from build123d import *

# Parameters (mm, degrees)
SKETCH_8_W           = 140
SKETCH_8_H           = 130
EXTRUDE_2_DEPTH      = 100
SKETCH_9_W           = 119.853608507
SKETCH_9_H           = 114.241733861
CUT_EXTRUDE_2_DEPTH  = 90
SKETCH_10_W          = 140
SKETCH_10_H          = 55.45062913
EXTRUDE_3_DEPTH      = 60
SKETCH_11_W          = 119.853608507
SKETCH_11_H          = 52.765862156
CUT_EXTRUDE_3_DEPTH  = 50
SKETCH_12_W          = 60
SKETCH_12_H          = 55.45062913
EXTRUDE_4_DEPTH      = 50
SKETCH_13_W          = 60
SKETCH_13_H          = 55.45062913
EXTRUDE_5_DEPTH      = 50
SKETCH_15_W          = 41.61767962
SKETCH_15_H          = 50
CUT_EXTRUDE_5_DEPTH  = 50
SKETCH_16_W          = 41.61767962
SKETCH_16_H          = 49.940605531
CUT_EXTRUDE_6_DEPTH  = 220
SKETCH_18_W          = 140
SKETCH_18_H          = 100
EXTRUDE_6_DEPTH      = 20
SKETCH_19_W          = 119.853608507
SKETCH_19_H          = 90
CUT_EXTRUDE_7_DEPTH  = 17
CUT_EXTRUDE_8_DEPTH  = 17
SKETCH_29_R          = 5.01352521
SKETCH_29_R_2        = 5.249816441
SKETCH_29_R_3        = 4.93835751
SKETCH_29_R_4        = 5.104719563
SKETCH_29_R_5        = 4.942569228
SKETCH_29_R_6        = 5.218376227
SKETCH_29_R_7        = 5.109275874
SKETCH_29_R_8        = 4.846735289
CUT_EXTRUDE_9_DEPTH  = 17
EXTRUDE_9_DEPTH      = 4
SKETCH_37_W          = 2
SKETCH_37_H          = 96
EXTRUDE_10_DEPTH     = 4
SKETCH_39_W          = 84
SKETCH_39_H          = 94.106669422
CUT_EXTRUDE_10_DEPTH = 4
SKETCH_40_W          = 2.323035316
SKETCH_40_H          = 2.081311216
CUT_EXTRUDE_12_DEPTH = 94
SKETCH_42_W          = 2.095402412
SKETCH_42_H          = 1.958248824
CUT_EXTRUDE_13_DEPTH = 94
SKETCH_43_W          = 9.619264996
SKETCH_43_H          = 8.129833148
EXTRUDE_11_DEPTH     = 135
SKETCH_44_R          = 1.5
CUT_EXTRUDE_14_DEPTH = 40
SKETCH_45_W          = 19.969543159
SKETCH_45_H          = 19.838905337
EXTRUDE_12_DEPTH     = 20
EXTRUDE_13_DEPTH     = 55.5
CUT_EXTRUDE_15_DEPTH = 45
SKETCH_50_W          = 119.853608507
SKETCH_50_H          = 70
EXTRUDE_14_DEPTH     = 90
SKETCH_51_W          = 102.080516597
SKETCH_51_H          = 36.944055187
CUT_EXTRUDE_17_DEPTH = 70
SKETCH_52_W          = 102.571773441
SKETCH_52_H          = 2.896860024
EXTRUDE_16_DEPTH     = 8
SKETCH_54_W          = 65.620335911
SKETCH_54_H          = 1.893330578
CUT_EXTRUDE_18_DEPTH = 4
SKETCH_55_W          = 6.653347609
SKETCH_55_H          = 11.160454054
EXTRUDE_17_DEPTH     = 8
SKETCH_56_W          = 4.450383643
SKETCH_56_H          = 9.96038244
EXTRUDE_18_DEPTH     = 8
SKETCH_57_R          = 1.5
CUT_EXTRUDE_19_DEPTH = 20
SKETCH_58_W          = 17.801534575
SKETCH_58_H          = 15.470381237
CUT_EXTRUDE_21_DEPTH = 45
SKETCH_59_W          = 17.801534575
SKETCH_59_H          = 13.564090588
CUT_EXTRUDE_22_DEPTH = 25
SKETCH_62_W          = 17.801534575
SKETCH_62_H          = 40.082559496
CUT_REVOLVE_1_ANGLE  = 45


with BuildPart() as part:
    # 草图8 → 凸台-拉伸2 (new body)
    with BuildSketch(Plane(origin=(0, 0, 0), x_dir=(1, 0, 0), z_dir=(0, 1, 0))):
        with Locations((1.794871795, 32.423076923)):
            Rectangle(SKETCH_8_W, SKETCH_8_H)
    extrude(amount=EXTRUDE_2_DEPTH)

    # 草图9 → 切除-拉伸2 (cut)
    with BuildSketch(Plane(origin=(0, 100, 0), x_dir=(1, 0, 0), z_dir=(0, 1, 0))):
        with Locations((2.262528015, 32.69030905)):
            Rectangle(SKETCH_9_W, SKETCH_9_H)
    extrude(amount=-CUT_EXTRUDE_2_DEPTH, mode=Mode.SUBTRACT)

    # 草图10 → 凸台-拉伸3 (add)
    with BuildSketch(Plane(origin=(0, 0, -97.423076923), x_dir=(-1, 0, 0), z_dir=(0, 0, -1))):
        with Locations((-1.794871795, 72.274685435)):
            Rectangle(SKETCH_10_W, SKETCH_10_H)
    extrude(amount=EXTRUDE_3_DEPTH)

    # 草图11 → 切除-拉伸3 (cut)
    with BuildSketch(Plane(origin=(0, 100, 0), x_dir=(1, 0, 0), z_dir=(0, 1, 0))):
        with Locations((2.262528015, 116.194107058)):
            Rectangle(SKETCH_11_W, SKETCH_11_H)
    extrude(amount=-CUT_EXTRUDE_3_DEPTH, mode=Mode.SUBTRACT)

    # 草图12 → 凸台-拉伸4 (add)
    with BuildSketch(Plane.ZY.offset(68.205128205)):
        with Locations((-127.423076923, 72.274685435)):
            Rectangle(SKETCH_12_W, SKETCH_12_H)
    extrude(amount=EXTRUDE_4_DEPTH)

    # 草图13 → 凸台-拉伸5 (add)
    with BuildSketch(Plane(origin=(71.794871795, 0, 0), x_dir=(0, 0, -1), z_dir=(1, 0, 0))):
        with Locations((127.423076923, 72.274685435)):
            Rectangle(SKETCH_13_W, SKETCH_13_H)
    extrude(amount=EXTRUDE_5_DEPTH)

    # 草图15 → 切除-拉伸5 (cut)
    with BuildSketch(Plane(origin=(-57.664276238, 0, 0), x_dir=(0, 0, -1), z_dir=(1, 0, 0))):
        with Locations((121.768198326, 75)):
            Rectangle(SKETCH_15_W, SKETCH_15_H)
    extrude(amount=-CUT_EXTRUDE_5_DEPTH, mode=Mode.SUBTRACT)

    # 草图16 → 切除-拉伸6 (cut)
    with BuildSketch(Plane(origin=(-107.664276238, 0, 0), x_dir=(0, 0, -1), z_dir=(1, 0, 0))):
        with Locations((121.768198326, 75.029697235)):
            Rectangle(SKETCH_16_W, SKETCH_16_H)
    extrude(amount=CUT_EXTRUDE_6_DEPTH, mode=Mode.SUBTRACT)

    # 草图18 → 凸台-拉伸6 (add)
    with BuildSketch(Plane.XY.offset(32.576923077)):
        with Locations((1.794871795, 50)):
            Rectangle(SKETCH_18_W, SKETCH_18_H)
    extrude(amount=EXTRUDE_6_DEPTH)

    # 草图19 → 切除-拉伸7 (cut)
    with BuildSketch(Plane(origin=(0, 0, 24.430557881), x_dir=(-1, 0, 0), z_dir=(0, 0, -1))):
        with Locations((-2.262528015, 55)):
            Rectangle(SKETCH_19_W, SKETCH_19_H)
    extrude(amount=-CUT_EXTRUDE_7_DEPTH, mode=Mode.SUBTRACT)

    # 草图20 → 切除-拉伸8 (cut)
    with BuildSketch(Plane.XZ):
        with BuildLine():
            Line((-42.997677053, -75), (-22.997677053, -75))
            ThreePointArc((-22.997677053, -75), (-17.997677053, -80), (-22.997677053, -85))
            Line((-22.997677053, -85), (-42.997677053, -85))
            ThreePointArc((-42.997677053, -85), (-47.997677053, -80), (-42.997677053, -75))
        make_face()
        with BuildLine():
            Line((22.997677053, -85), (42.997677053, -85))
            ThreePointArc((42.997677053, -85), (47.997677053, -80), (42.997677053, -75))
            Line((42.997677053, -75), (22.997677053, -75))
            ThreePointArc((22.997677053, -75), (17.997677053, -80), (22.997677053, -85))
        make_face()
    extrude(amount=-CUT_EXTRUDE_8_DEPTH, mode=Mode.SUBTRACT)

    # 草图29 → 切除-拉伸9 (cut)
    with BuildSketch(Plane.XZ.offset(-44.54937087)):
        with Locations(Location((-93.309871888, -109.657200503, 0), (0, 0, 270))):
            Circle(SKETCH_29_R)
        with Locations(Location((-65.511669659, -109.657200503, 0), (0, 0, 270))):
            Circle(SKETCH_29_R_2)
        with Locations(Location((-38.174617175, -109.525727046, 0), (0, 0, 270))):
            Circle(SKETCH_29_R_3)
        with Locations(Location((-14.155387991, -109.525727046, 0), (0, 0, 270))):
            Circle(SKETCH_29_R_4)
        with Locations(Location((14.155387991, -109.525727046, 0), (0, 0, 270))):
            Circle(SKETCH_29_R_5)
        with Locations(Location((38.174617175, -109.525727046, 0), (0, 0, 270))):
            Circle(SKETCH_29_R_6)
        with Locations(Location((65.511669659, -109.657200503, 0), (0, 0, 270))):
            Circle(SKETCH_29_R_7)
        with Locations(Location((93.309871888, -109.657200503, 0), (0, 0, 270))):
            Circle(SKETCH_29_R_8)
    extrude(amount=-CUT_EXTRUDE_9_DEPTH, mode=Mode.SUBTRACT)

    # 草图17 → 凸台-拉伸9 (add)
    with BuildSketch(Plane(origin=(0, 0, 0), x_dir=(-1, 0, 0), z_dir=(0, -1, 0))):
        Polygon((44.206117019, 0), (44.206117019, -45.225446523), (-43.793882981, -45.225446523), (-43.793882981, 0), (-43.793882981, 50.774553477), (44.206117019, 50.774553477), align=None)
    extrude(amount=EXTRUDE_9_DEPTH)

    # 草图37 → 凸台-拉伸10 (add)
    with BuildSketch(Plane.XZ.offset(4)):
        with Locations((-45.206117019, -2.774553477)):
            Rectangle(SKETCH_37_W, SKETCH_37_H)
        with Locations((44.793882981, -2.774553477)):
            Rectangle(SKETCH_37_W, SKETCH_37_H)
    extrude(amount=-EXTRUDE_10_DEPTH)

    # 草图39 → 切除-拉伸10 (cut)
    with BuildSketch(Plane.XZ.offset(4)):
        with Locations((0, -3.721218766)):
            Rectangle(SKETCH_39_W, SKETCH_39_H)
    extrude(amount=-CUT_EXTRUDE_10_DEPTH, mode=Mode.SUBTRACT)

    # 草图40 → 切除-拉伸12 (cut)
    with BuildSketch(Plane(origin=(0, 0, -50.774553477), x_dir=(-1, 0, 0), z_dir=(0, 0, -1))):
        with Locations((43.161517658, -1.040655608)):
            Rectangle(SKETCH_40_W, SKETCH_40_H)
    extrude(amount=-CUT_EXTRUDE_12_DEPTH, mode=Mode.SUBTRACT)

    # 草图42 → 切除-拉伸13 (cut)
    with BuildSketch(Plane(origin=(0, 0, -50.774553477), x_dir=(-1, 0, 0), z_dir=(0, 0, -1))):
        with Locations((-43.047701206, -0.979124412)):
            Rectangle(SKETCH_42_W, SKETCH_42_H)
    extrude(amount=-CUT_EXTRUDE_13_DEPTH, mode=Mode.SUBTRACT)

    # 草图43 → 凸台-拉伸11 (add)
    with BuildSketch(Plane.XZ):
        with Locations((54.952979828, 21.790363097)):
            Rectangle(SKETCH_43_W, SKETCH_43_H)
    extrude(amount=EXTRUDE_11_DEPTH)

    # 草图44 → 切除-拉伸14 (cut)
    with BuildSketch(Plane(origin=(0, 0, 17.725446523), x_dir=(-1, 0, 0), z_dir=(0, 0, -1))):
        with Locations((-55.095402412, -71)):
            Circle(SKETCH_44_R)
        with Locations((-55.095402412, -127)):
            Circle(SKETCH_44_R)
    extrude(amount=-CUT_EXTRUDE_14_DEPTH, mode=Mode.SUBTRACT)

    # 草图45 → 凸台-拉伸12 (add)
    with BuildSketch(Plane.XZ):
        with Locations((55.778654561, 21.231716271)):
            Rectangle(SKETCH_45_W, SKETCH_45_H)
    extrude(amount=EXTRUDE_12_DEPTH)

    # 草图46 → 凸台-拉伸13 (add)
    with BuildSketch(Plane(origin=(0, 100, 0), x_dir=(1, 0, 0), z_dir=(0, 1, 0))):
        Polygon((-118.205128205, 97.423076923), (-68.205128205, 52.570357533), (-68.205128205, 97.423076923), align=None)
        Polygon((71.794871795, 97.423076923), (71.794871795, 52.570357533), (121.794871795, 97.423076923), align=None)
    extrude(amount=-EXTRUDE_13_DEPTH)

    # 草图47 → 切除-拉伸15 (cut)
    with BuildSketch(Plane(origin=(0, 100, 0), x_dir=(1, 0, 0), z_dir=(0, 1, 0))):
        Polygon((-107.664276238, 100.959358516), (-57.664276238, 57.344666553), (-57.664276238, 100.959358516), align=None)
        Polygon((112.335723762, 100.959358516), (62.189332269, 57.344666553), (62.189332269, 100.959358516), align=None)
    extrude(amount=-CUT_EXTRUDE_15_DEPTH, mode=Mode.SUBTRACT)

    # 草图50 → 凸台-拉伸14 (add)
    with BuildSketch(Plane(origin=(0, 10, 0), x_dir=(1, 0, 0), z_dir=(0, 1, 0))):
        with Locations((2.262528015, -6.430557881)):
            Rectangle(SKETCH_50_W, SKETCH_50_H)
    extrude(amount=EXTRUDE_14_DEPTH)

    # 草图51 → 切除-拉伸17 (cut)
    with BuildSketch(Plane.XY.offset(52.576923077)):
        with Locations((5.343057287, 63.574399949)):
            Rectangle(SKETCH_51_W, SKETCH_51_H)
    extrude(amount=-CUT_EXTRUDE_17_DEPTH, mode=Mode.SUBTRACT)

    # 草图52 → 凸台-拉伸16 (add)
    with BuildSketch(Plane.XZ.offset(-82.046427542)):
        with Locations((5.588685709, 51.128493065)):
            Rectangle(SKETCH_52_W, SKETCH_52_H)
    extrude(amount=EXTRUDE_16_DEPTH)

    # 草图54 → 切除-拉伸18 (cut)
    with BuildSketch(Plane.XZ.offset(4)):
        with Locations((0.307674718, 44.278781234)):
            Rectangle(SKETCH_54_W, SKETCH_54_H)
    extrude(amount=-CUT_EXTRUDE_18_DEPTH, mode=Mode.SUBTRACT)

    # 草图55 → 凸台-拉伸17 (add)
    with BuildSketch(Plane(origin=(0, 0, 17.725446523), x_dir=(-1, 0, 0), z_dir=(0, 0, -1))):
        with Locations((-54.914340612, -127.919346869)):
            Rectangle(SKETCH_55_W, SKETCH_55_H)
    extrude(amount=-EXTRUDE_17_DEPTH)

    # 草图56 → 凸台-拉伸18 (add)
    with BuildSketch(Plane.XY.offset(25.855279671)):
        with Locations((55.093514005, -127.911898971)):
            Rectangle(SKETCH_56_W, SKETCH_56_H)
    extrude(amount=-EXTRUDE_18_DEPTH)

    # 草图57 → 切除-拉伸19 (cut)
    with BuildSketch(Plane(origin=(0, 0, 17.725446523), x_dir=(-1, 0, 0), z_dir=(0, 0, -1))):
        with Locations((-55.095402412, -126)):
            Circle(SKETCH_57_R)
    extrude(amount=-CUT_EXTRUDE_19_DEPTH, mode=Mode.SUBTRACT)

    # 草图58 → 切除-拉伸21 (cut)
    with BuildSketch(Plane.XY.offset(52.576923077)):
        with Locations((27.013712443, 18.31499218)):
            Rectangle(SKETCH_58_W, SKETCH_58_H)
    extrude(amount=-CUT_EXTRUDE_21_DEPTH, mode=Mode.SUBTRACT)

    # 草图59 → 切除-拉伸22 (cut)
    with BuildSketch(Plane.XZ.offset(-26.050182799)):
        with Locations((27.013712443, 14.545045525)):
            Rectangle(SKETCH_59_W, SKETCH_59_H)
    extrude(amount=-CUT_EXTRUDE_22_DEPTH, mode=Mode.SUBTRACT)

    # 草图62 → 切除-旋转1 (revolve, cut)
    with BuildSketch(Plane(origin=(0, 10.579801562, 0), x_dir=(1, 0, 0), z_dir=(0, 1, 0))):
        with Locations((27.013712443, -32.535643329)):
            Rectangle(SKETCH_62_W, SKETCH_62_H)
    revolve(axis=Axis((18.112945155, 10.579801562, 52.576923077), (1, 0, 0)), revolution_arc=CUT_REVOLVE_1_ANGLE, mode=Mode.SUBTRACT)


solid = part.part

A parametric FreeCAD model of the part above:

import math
import FreeCAD as App
import Part
import Sketcher
Q = App.Units.Quantity


def add_polygon(sketch, points):
    """Adds a closed chain of lines whose ends are joined by coincident constraints."""
    first, n = sketch.GeometryCount, len(points)
    for a, b in zip(points, points[1:] + points[:1]):
        sketch.addGeometry(Part.LineSegment(App.Vector(*a, 0), App.Vector(*b, 0)), False)
    for i in range(n):
        sketch.addConstraint(Sketcher.Constraint("Coincident", first + i, 2, first + (i + 1) % n, 1))

doc = App.newDocument("Part")
body = doc.addObject("PartDesign::Body", "Body")

sketch1 = body.newObject("Sketcher::SketchObject", "Sketch")
sketch1.AttachmentSupport = (doc.getObject("XZ_Plane"), [""])
sketch1.MapMode = "FlatFace"
add_polygon(sketch1, [(-68.205128, -97.423077), (-68.205128, 32.576923), (71.794872, 32.576923), (71.794872, -97.423077)])
sketch1.addConstraint(Sketcher.Constraint("Vertical", 0))
sketch1.addConstraint(Sketcher.Constraint("Horizontal", 1))
sketch1.addConstraint(Sketcher.Constraint("Vertical", 2))
sketch1.addConstraint(Sketcher.Constraint("Horizontal", 3))
sketch1.addConstraint(Sketcher.Constraint("DistanceX", 1, 1, 1, 2, Q("140 mm")))
sketch1.addConstraint(Sketcher.Constraint("DistanceY", 0, 1, 0, 2, Q("130 mm")))
sketch1.addConstraint(Sketcher.Constraint("DistanceX", 0, 2, -1, 1, Q("68.205128 mm")))
sketch1.addConstraint(Sketcher.Constraint("DistanceY", -1, 1, 0, 2, Q("32.576923 mm")))
pad1 = body.newObject("PartDesign::Pad", "Pad")
pad1.Profile = sketch1
pad1.Length = 100
pad1.Reversed = True

sketch2 = body.newObject("Sketcher::SketchObject", "Sketch001")
sketch2.AttachmentSupport = (doc.getObject("XZ_Plane"), [""])
sketch2.MapMode = "FlatFace"
sketch2.AttachmentOffset = App.Placement(App.Vector(0, 0, -100), App.Rotation())
add_polygon(sketch2, [(-57.664276, -89.811176), (-57.664276, 24.430558), (62.189332, 24.430558), (62.189332, -89.811176)])
sketch2.addConstraint(Sketcher.Constraint("Vertical", 0))
sketch2.addConstraint(Sketcher.Constraint("Horizontal", 1))
sketch2.addConstraint(Sketcher.Constraint("Vertical", 2))
sketch2.addConstraint(Sketcher.Constraint("Horizontal", 3))
sketch2.addConstraint(Sketcher.Constraint("DistanceX", 1, 1, 1, 2, Q("119.853609 mm")))
sketch2.addConstraint(Sketcher.Constraint("DistanceY", 0, 1, 0, 2, Q("114.241734 mm")))
sketch2.addConstraint(Sketcher.Constraint("DistanceX", 0, 2, -1, 1, Q("57.664276 mm")))
sketch2.addConstraint(Sketcher.Constraint("DistanceY", -1, 1, 0, 2, Q("24.430558 mm")))
pocket1 = body.newObject("PartDesign::Pocket", "Pocket")
pocket1.Profile = sketch2
pocket1.Length = 90
pocket1.Reversed = True

sketch3 = body.newObject("Sketcher::SketchObject", "Sketch002")
sketch3.AttachmentSupport = (doc.getObject("XY_Plane"), [""])
sketch3.MapMode = "FlatFace"
sketch3.AttachmentOffset = App.Placement(App.Vector(0, 0, -97.423077), App.Rotation())
add_polygon(sketch3, [(71.794872, 100), (71.794872, 44.549371), (-68.205128, 44.549371), (-68.205128, 100)])
sketch3.addConstraint(Sketcher.Constraint("Vertical", 0))
sketch3.addConstraint(Sketcher.Constraint("Horizontal", 1))
sketch3.addConstraint(Sketcher.Constraint("Vertical", 2))
sketch3.addConstraint(Sketcher.Constraint("Horizontal", 3))
sketch3.addConstraint(Sketcher.Constraint("DistanceX", 1, 2, 1, 1, Q("140 mm")))
sketch3.addConstraint(Sketcher.Constraint("DistanceY", -1, 1, 2, 2, Q("100 mm")))
sketch3.addConstraint(Sketcher.Constraint("DistanceY", 0, 2, 0, 1, Q("55.450629 mm")))
sketch3.addConstraint(Sketcher.Constraint("DistanceX", -1, 1, 0, 2, Q("71.794872 mm")))
pad2 = body.newObject("PartDesign::Pad", "Pad001")
pad2.Profile = sketch3
pad2.Length = 60
pad2.Reversed = True

sketch4 = body.newObject("Sketcher::SketchObject", "Sketch003")
sketch4.AttachmentSupport = (doc.getObject("XZ_Plane"), [""])
sketch4.MapMode = "FlatFace"
sketch4.AttachmentOffset = App.Placement(App.Vector(0, 0, -100), App.Rotation())
add_polygon(sketch4, [(-57.664276, -142.577038), (-57.664276, -89.811176), (62.189332, -89.811176), (62.189332, -142.577038)])
sketch4.addConstraint(Sketcher.Constraint("Vertical", 0))
sketch4.addConstraint(Sketcher.Constraint("Horizontal", 1))
sketch4.addConstraint(Sketcher.Constraint("Vertical", 2))
sketch4.addConstraint(Sketcher.Constraint("Horizontal", 3))
sketch4.addConstraint(Sketcher.Constraint("DistanceX", 1, 1, 1, 2, Q("119.853609 mm")))
sketch4.addConstraint(Sketcher.Constraint("DistanceY", 0, 1, 0, 2, Q("52.765862 mm")))
sketch4.addConstraint(Sketcher.Constraint("DistanceY", 2, 2, -1, 1, Q("142.577038 mm")))
sketch4.addConstraint(Sketcher.Constraint("DistanceX", 0, 2, -1, 1, Q("57.664276 mm")))
pocket2 = body.newObject("PartDesign::Pocket", "Pocket001")
pocket2.Profile = sketch4
pocket2.Length = 50
pocket2.Reversed = True

sketch5 = body.newObject("Sketcher::SketchObject", "Sketch004")
sketch5.AttachmentSupport = (doc.getObject("YZ_Plane"), [""])
sketch5.MapMode = "FlatFace"
sketch5.AttachmentOffset = App.Placement(App.Vector(0, 0, -68.205128), App.Rotation())
add_polygon(sketch5, [(100, -157.423077), (44.549371, -157.423077), (44.549371, -97.423077), (100, -97.423077)])
sketch5.addConstraint(Sketcher.Constraint("Horizontal", 0))
sketch5.addConstraint(Sketcher.Constraint("Vertical", 1))
sketch5.addConstraint(Sketcher.Constraint("Horizontal", 2))
sketch5.addConstraint(Sketcher.Constraint("Vertical", 3))
sketch5.addConstraint(Sketcher.Constraint("DistanceY", 1, 1, 1, 2, Q("60 mm")))
sketch5.addConstraint(Sketcher.Constraint("DistanceX", -1, 1, 2, 2, Q("100 mm")))
sketch5.addConstraint(Sketcher.Constraint("DistanceX", 0, 2, 0, 1, Q("55.450629 mm")))
sketch5.addConstraint(Sketcher.Constraint("DistanceY", 0, 2, -1, 1, Q("157.423077 mm")))
pad3 = body.newObject("PartDesign::Pad", "Pad002")
pad3.Profile = sketch5
pad3.Length = 50
pad3.Reversed = True

sketch6 = body.newObject("Sketcher::SketchObject", "Sketch005")
sketch6.AttachmentSupport = (doc.getObject("YZ_Plane"), [""])
sketch6.MapMode = "FlatFace"
sketch6.AttachmentOffset = App.Placement(App.Vector(0, 0, 71.794872), App.Rotation())
add_polygon(sketch6, [(100, -97.423077), (44.549371, -97.423077), (44.549371, -157.423077), (100, -157.423077)])
sketch6.addConstraint(Sketcher.Constraint("Horizontal", 0))
sketch6.addConstraint(Sketcher.Constraint("Vertical", 1))
sketch6.addConstraint(Sketcher.Constraint("Horizontal", 2))
sketch6.addConstraint(Sketcher.Constraint("Vertical", 3))
sketch6.addConstraint(Sketcher.Constraint("DistanceY", 1, 2, 1, 1, Q("60 mm")))
sketch6.addConstraint(Sketcher.Constraint("DistanceX", -1, 1, 2, 2, Q("100 mm")))
sketch6.addConstraint(Sketcher.Constraint("DistanceX", 0, 2, 0, 1, Q("55.450629 mm")))
sketch6.addConstraint(Sketcher.Constraint("DistanceY", 0, 2, -1, 1, Q("97.423077 mm")))
pad4 = body.newObject("PartDesign::Pad", "Pad003")
pad4.Profile = sketch6
pad4.Length = 50

sketch7 = body.newObject("Sketcher::SketchObject", "Sketch006")
sketch7.AttachmentSupport = (doc.getObject("YZ_Plane"), [""])
sketch7.MapMode = "FlatFace"
sketch7.AttachmentOffset = App.Placement(App.Vector(0, 0, -57.664276), App.Rotation())
add_polygon(sketch7, [(100, -100.959359), (50, -100.959359), (50, -142.577038), (100, -142.577038)])
sketch7.addConstraint(Sketcher.Constraint("Horizontal", 0))
sketch7.addConstraint(Sketcher.Constraint("Vertical", 1))
sketch7.addConstraint(Sketcher.Constraint("Horizontal", 2))
sketch7.addConstraint(Sketcher.Constraint("Vertical", 3))
sketch7.addConstraint(Sketcher.Constraint("DistanceX", 0, 2, 0, 1, Q("50 mm")))
sketch7.addConstraint(Sketcher.Constraint("DistanceX", -1, 1, 0, 2, Q("50 mm")))
sketch7.addConstraint(Sketcher.Constraint("DistanceY", 1, 2, 1, 1, Q("41.61768 mm")))
sketch7.addConstraint(Sketcher.Constraint("DistanceY", 0, 2, -1, 1, Q("100.959359 mm")))
pocket3 = body.newObject("PartDesign::Pocket", "Pocket002")
pocket3.Profile = sketch7
pocket3.Length = 50

sketch8 = body.newObject("Sketcher::SketchObject", "Sketch007")
sketch8.AttachmentSupport = (doc.getObject("YZ_Plane"), [""])
sketch8.MapMode = "FlatFace"
sketch8.AttachmentOffset = App.Placement(App.Vector(0, 0, -107.664276), App.Rotation())
add_polygon(sketch8, [(100, -100.959359), (50.059394, -100.959359), (50.059394, -142.577038), (100, -142.577038)])
sketch8.addConstraint(Sketcher.Constraint("Horizontal", 0))
sketch8.addConstraint(Sketcher.Constraint("Vertical", 1))
sketch8.addConstraint(Sketcher.Constraint("Horizontal", 2))
sketch8.addConstraint(Sketcher.Constraint("Vertical", 3))
sketch8.addConstraint(Sketcher.Constraint("DistanceX", -1, 1, 2, 2, Q("100 mm")))
sketch8.addConstraint(Sketcher.Constraint("DistanceY", 1, 2, 1, 1, Q("41.61768 mm")))
sketch8.addConstraint(Sketcher.Constraint("DistanceX", 0, 2, 0, 1, Q("49.940606 mm")))
sketch8.addConstraint(Sketcher.Constraint("DistanceY", 0, 2, -1, 1, Q("100.959359 mm")))
pocket4 = body.newObject("PartDesign::Pocket", "Pocket003")
pocket4.Profile = sketch8
pocket4.Length = 220
pocket4.Reversed = True

sketch9 = body.newObject("Sketcher::SketchObject", "Sketch008")
sketch9.AttachmentSupport = (doc.getObject("XY_Plane"), [""])
sketch9.MapMode = "FlatFace"
sketch9.AttachmentOffset = App.Placement(App.Vector(0, 0, 32.576923), App.Rotation())
add_polygon(sketch9, [(-68.205128, 100), (-68.205128, 0), (71.794872, 0), (71.794872, 100)])
sketch9.addConstraint(Sketcher.Constraint("Vertical", 0))
sketch9.addConstraint(Sketcher.Constraint("Horizontal", 1))
sketch9.addConstraint(Sketcher.Constraint("Vertical", 2))
sketch9.addConstraint(Sketcher.Constraint("Horizontal", 3))
sketch9.addConstraint(Sketcher.Constraint("PointOnObject", 0, 2, -1))
sketch9.addConstraint(Sketcher.Constraint("DistanceX", 1, 1, 1, 2, Q("140 mm")))
sketch9.addConstraint(Sketcher.Constraint("DistanceY", 0, 2, 0, 1, Q("100 mm")))
sketch9.addConstraint(Sketcher.Constraint("DistanceX", 0, 2, -1, 1, Q("68.205128 mm")))
pad5 = body.newObject("PartDesign::Pad", "Pad004")
pad5.Profile = sketch9
pad5.Length = 20

sketch10 = body.newObject("Sketcher::SketchObject", "Sketch009")
sketch10.AttachmentSupport = (doc.getObject("XY_Plane"), [""])
sketch10.MapMode = "FlatFace"
sketch10.AttachmentOffset = App.Placement(App.Vector(0, 0, 24.430558), App.Rotation())
add_polygon(sketch10, [(62.189332, 100), (62.189332, 10), (-57.664276, 10), (-57.664276, 100)])
sketch10.addConstraint(Sketcher.Constraint("Vertical", 0))
sketch10.addConstraint(Sketcher.Constraint("Horizontal", 1))
sketch10.addConstraint(Sketcher.Constraint("Vertical", 2))
sketch10.addConstraint(Sketcher.Constraint("Horizontal", 3))
sketch10.addConstraint(Sketcher.Constraint("DistanceY", 0, 2, 0, 1, Q("90 mm")))
sketch10.addConstraint(Sketcher.Constraint("DistanceY", -1, 1, 0, 2, Q("10 mm")))
sketch10.addConstraint(Sketcher.Constraint("DistanceX", 1, 2, 1, 1, Q("119.853609 mm")))
sketch10.addConstraint(Sketcher.Constraint("DistanceX", -1, 1, 0, 2, Q("62.189332 mm")))
pocket5 = body.newObject("PartDesign::Pocket", "Pocket004")
pocket5.Profile = sketch10
pocket5.Length = 17
pocket5.Reversed = True

sketch11 = body.newObject("Sketcher::SketchObject", "Sketch010")
sketch11.AttachmentSupport = (doc.getObject("XZ_Plane"), [""])
sketch11.MapMode = "FlatFace"
sketch11.addGeometry(Part.LineSegment(App.Vector(-22.997677, -75, 0), App.Vector(-42.997677, -75, 0)), False)
sketch11.addGeometry(Part.ArcOfCircle(Part.Circle(App.Vector(-42.997677, -80, 0), App.Vector(0, 0, 1), 5), math.radians(90), math.radians(270)), False)
sketch11.addGeometry(Part.LineSegment(App.Vector(-42.997677, -85, 0), App.Vector(-22.997677, -85, 0)), False)
sketch11.addGeometry(Part.ArcOfCircle(Part.Circle(App.Vector(-22.997677, -80, 0), App.Vector(0, 0, 1), 5), math.radians(-90), math.radians(90)), False)
sketch11.addGeometry(Part.LineSegment(App.Vector(22.997677, -85, 0), App.Vector(42.997677, -85, 0)), False)
sketch11.addGeometry(Part.ArcOfCircle(Part.Circle(App.Vector(42.997677, -80, 0), App.Vector(0, 0, 1), 5), math.radians(-90), math.radians(90)), False)
sketch11.addGeometry(Part.LineSegment(App.Vector(42.997677, -75, 0), App.Vector(22.997677, -75, 0)), False)
sketch11.addGeometry(Part.ArcOfCircle(Part.Circle(App.Vector(22.997677, -80, 0), App.Vector(0, 0, 1), 5), math.radians(90), math.radians(270)), False)
sketch11.addConstraint(Sketcher.Constraint("Tangent", 0, 2, 1, 1))
sketch11.addConstraint(Sketcher.Constraint("Tangent", 1, 2, 2, 1))
sketch11.addConstraint(Sketcher.Constraint("Tangent", 2, 2, 3, 1))
sketch11.addConstraint(Sketcher.Constraint("Tangent", 3, 2, 0, 1))
sketch11.addConstraint(Sketcher.Constraint("Tangent", 4, 2, 5, 1))
sketch11.addConstraint(Sketcher.Constraint("Tangent", 5, 2, 6, 1))
sketch11.addConstraint(Sketcher.Constraint("Tangent", 6, 2, 7, 1))
sketch11.addConstraint(Sketcher.Constraint("Tangent", 7, 2, 4, 1))
sketch11.addConstraint(Sketcher.Constraint("Horizontal", 0))
sketch11.addConstraint(Sketcher.Constraint("Horizontal", 2))
sketch11.addConstraint(Sketcher.Constraint("Horizontal", 4))
sketch11.addConstraint(Sketcher.Constraint("Horizontal", 6))
sketch11.addConstraint(Sketcher.Constraint("Equal", 3, 5))
sketch11.addConstraint(Sketcher.Constraint("Symmetric", 1, 3, 5, 3, -2))
sketch11.addConstraint(Sketcher.Constraint("Equal", 2, 4))
sketch11.addConstraint(Sketcher.Constraint("Radius", 1, Q("5 mm")))
sketch11.addConstraint(Sketcher.Constraint("DistanceX", 0, 2, 0, 1, Q("20 mm")))
sketch11.addConstraint(Sketcher.Constraint("DistanceY", 1, 3, -1, 1, Q("80 mm")))
sketch11.addConstraint(Sketcher.Constraint("DistanceX", 1, 3, -1, 1, Q("42.997677 mm")))
pocket6 = body.newObject("PartDesign::Pocket", "Pocket005")
pocket6.Profile = sketch11
pocket6.Length = 17

sketch12 = body.newObject("Sketcher::SketchObject", "Sketch011")
sketch12.AttachmentSupport = (doc.getObject("XZ_Plane"), [""])
sketch12.MapMode = "FlatFace"
sketch12.AttachmentOffset = App.Placement(App.Vector(0, 0, -44.549371), App.Rotation())
sketch12.addGeometry(Part.Circle(App.Vector(-93.309872, -109.657201, 0), App.Vector(0, 0, 1), 5.013525), False)
sketch12.addGeometry(Part.Circle(App.Vector(-65.51167, -109.657201, 0), App.Vector(0, 0, 1), 5.249816), False)
sketch12.addGeometry(Part.Circle(App.Vector(-38.174617, -109.525727, 0), App.Vector(0, 0, 1), 4.938358), False)
sketch12.addGeometry(Part.Circle(App.Vector(-14.155388, -109.525727, 0), App.Vector(0, 0, 1), 5.10472), False)
sketch12.addGeometry(Part.Circle(App.Vector(14.155388, -109.525727, 0), App.Vector(0, 0, 1), 4.942569), False)
sketch12.addGeometry(Part.Circle(App.Vector(38.174617, -109.525727, 0), App.Vector(0, 0, 1), 5.218376), False)
sketch12.addGeometry(Part.Circle(App.Vector(65.51167, -109.657201, 0), App.Vector(0, 0, 1), 5.109276), False)
sketch12.addGeometry(Part.Circle(App.Vector(93.309872, -109.657201, 0), App.Vector(0, 0, 1), 4.846735), False)
sketch12.addConstraint(Sketcher.Constraint("Symmetric", 3, 3, 4, 3, -2))
sketch12.addConstraint(Sketcher.Constraint("Symmetric", 2, 3, 5, 3, -2))
sketch12.addConstraint(Sketcher.Constraint("Symmetric", 1, 3, 6, 3, -2))
sketch12.addConstraint(Sketcher.Constraint("Symmetric", 0, 3, 7, 3, -2))
sketch12.addConstraint(Sketcher.Constraint("Horizontal", 0, 3, 1, 3))
sketch12.addConstraint(Sketcher.Constraint("Horizontal", 2, 3, 3, 3))
sketch12.addConstraint(Sketcher.Constraint("Diameter", 0, Q("10.02705 mm")))
sketch12.addConstraint(Sketcher.Constraint("Diameter", 3, Q("10.209439 mm")))
sketch12.addConstraint(Sketcher.Constraint("Diameter", 4, Q("9.885138 mm")))
sketch12.addConstraint(Sketcher.Constraint("Diameter", 6, Q("10.218552 mm")))
sketch12.addConstraint(Sketcher.Constraint("Diameter", 7, Q("9.693471 mm")))
sketch12.addConstraint(Sketcher.Constraint("Diameter", 1, Q("10.499633 mm")))
sketch12.addConstraint(Sketcher.Constraint("Diameter", 2, Q("9.876715 mm")))
sketch12.addConstraint(Sketcher.Constraint("Diameter", 5, Q("10.436752 mm")))
sketch12.addConstraint(Sketcher.Constraint("DistanceY", 0, 3, -1, 1, Q("109.657201 mm")))
sketch12.addConstraint(Sketcher.Constraint("DistanceX", 0, 3, -1, 1, Q("93.309872 mm")))
sketch12.addConstraint(Sketcher.Constraint("DistanceX", 1, 3, -1, 1, Q("65.51167 mm")))
sketch12.addConstraint(Sketcher.Constraint("DistanceX", 2, 3, 3, 3, Q("24.019229 mm")))
sketch12.addConstraint(Sketcher.Constraint("DistanceX", 1, 3, 3, 3, Q("51.356282 mm")))
sketch12.addConstraint(Sketcher.Constraint("DistanceY", 2, 3, -1, 1, Q("109.525727 mm")))
pocket7 = body.newObject("PartDesign::Pocket", "Pocket006")
pocket7.Profile = sketch12
pocket7.Length = 17

sketch13 = body.newObject("Sketcher::SketchObject", "Sketch012")
sketch13.AttachmentSupport = (doc.getObject("XZ_Plane"), [""])
sketch13.MapMode = "FlatFace"
add_polygon(sketch13, [(-44.206117, 45.225447), (-44.206117, -50.774553), (43.793883, -50.774553), (43.793883, 45.225447)])
sketch13.addConstraint(Sketcher.Constraint("Vertical", 0))
sketch13.addConstraint(Sketcher.Constraint("Horizontal", 1))
sketch13.addConstraint(Sketcher.Constraint("Vertical", 2))
sketch13.addConstraint(Sketcher.Constraint("Horizontal", 3))
sketch13.addConstraint(Sketcher.Constraint("DistanceX", 1, 1, 1, 2, Q("88 mm")))
sketch13.addConstraint(Sketcher.Constraint("DistanceY", 0, 2, 0, 1, Q("96 mm")))
sketch13.addConstraint(Sketcher.Constraint("DistanceX", 0, 2, -1, 1, Q("44.206117 mm")))
sketch13.addConstraint(Sketcher.Constraint("DistanceY", 0, 2, -1, 1, Q("50.774553 mm")))
pad6 = body.newObject("PartDesign::Pad", "Pad005")
pad6.Profile = sketch13
pad6.Length = 4

sketch14 = body.newObject("Sketcher::SketchObject", "Sketch013")
sketch14.AttachmentSupport = (doc.getObject("XZ_Plane"), [""])
sketch14.MapMode = "FlatFace"
sketch14.AttachmentOffset = App.Placement(App.Vector(0, 0, 4), App.Rotation())
add_polygon(sketch14, [(-46.206117, 45.225447), (-46.206117, -50.774553), (-44.206117, -50.774553), (-44.206117, 45.225447)])
add_polygon(sketch14, [(43.793883, 45.225447), (43.793883, -50.774553), (45.793883, -50.774553), (45.793883, 45.225447)])
sketch14.addConstraint(Sketcher.Constraint("Vertical", 0))
sketch14.addConstraint(Sketcher.Constraint("Horizontal", 1))
sketch14.addConstraint(Sketcher.Constraint("Vertical", 2))
sketch14.addConstraint(Sketcher.Constraint("Horizontal", 3))
sketch14.addConstraint(Sketcher.Constraint("Vertical", 4))
sketch14.addConstraint(Sketcher.Constraint("Horizontal", 5))
sketch14.addConstraint(Sketcher.Constraint("Vertical", 6))
sketch14.addConstraint(Sketcher.Constraint("Horizontal", 7))
sketch14.addConstraint(Sketcher.Constraint("Horizontal", 1, 2, 4, 2))
sketch14.addConstraint(Sketcher.Constraint("Horizontal", 3, 2, 6, 2))
sketch14.addConstraint(Sketcher.Constraint("Equal", 3, 5))
sketch14.addConstraint(Sketcher.Constraint("DistanceX", 1, 1, 1, 2, Q("2 mm")))
sketch14.addConstraint(Sketcher.Constraint("DistanceY", 0, 2, 0, 1, Q("96 mm")))
sketch14.addConstraint(Sketcher.Constraint("DistanceX", 1, 2, 4, 2, Q("88 mm")))
sketch14.addConstraint(Sketcher.Constraint("DistanceX", 0, 2, -1, 1, Q("46.206117 mm")))
sketch14.addConstraint(Sketcher.Constraint("DistanceY", 0, 2, -1, 1, Q("50.774553 mm")))
pad7 = body.newObject("PartDesign::Pad", "Pad006")
pad7.Profile = sketch14
pad7.Length = 4
pad7.Reversed = True

sketch15 = body.newObject("Sketcher::SketchObject", "Sketch014")
sketch15.AttachmentSupport = (doc.getObject("XZ_Plane"), [""])
sketch15.MapMode = "FlatFace"
sketch15.AttachmentOffset = App.Placement(App.Vector(0, 0, 4), App.Rotation())
add_polygon(sketch15, [(-42, 43.332116), (-42, -50.774553), (42, -50.774553), (42, 43.332116)])
sketch15.addConstraint(Sketcher.Constraint("Vertical", 0))
sketch15.addConstraint(Sketcher.Constraint("Horizontal", 1))
sketch15.addConstraint(Sketcher.Constraint("Vertical", 2))
sketch15.addConstraint(Sketcher.Constraint("Horizontal", 3))
sketch15.addConstraint(Sketcher.Constraint("DistanceX", 1, 1, 1, 2, Q("84 mm")))
sketch15.addConstraint(Sketcher.Constraint("DistanceX", 0, 2, -1, 1, Q("42 mm")))
sketch15.addConstraint(Sketcher.Constraint("DistanceY", 0, 2, 0, 1, Q("94.106669 mm")))
sketch15.addConstraint(Sketcher.Constraint("DistanceY", 0, 2, -1, 1, Q("50.774553 mm")))
pocket8 = body.newObject("PartDesign::Pocket", "Pocket007")
pocket8.Profile = sketch15
pocket8.Length = 4

sketch16 = body.newObject("Sketcher::SketchObject", "Sketch015")
sketch16.AttachmentSupport = (doc.getObject("XY_Plane"), [""])
sketch16.MapMode = "FlatFace"
sketch16.AttachmentOffset = App.Placement(App.Vector(0, 0, -50.774553), App.Rotation())
add_polygon(sketch16, [(-42, 0), (-42, -2.081311), (-44.323035, -2.081311), (-44.323035, 0)])
sketch16.addConstraint(Sketcher.Constraint("Vertical", 0))
sketch16.addConstraint(Sketcher.Constraint("Horizontal", 1))
sketch16.addConstraint(Sketcher.Constraint("Vertical", 2))
sketch16.addConstraint(Sketcher.Constraint("Horizontal", 3))
sketch16.addConstraint(Sketcher.Constraint("PointOnObject", 2, 2, -1))
sketch16.addConstraint(Sketcher.Constraint("DistanceX", 0, 2, -1, 1, Q("42 mm")))
sketch16.addConstraint(Sketcher.Constraint("DistanceY", 0, 2, 0, 1, Q("2.081311 mm")))
sketch16.addConstraint(Sketcher.Constraint("DistanceX", 1, 2, 1, 1, Q("2.323035 mm")))
pocket9 = body.newObject("PartDesign::Pocket", "Pocket008")
pocket9.Profile = sketch16
pocket9.Length = 94
pocket9.Reversed = True

sketch17 = body.newObject("Sketcher::SketchObject", "Sketch016")
sketch17.AttachmentSupport = (doc.getObject("XY_Plane"), [""])
sketch17.MapMode = "FlatFace"
sketch17.AttachmentOffset = App.Placement(App.Vector(0, 0, -50.774553), App.Rotation())
add_polygon(sketch17, [(44.095402, 0), (44.095402, -1.958249), (42, -1.958249), (42, 0)])
sketch17.addConstraint(Sketcher.Constraint("Vertical", 0))
sketch17.addConstraint(Sketcher.Constraint("Horizontal", 1))
sketch17.addConstraint(Sketcher.Constraint("Vertical", 2))
sketch17.addConstraint(Sketcher.Constraint("Horizontal", 3))
sketch17.addConstraint(Sketcher.Constraint("PointOnObject", 2, 2, -1))
sketch17.addConstraint(Sketcher.Constraint("DistanceX", -1, 1, 1, 2, Q("42 mm")))
sketch17.addConstraint(Sketcher.Constraint("DistanceY", 0, 2, 0, 1, Q("1.958249 mm")))
sketch17.addConstraint(Sketcher.Constraint("DistanceX", 1, 2, 1, 1, Q("2.095402 mm")))
pocket10 = body.newObject("PartDesign::Pocket", "Pocket009")
pocket10.Profile = sketch17
pocket10.Length = 94
pocket10.Reversed = True

sketch18 = body.newObject("Sketcher::SketchObject", "Sketch017")
sketch18.AttachmentSupport = (doc.getObject("XZ_Plane"), [""])
sketch18.MapMode = "FlatFace"
add_polygon(sketch18, [(50.143347, 25.85528), (50.143347, 17.725447), (59.762612, 17.725447), (59.762612, 25.85528)])
sketch18.addConstraint(Sketcher.Constraint("Vertical", 0))
sketch18.addConstraint(Sketcher.Constraint("Horizontal", 1))
sketch18.addConstraint(Sketcher.Constraint("Vertical", 2))
sketch18.addConstraint(Sketcher.Constraint("Horizontal", 3))
sketch18.addConstraint(Sketcher.Constraint("DistanceX", 1, 1, 1, 2, Q("9.619265 mm")))
sketch18.addConstraint(Sketcher.Constraint("DistanceY", 0, 2, 0, 1, Q("8.129833 mm")))
sketch18.addConstraint(Sketcher.Constraint("DistanceY", -1, 1, 2, 2, Q("25.85528 mm")))
sketch18.addConstraint(Sketcher.Constraint("DistanceX", -1, 1, 0, 2, Q("50.143347 mm")))
pad8 = body.newObject("PartDesign::Pad", "Pad007")
pad8.Profile = sketch18
pad8.Length = 135

sketch19 = body.newObject("Sketcher::SketchObject", "Sketch018")
sketch19.AttachmentSupport = (doc.getObject("XY_Plane"), [""])
sketch19.MapMode = "FlatFace"
sketch19.AttachmentOffset = App.Placement(App.Vector(0, 0, 17.725447), App.Rotation())
sketch19.addGeometry(Part.Circle(App.Vector(55.095402, -71, 0), App.Vector(0, 0, 1), 1.5), False)
sketch19.addGeometry(Part.Circle(App.Vector(55.095402, -127, 0), App.Vector(0, 0, 1), 1.5), False)
sketch19.addConstraint(Sketcher.Constraint("Equal", 0, 1))
sketch19.addConstraint(Sketcher.Constraint("Vertical", 0, 3, 1, 3))
sketch19.addConstraint(Sketcher.Constraint("Diameter", 0, Q("3 mm")))
sketch19.addConstraint(Sketcher.Constraint("DistanceY", 0, 3, -1, 1, Q("71 mm")))
sketch19.addConstraint(Sketcher.Constraint("DistanceY", 1, 3, -1, 1, Q("127 mm")))
sketch19.addConstraint(Sketcher.Constraint("DistanceX", -1, 1, 0, 3, Q("55.095402 mm")))
pocket11 = body.newObject("PartDesign::Pocket", "Pocket010")
pocket11.Profile = sketch19
pocket11.Length = 40
pocket11.Reversed = True

sketch20 = body.newObject("Sketcher::SketchObject", "Sketch019")
sketch20.AttachmentSupport = (doc.getObject("XZ_Plane"), [""])
sketch20.MapMode = "FlatFace"
add_polygon(sketch20, [(45.793883, 31.151169), (45.793883, 11.312264), (65.763426, 11.312264), (65.763426, 31.151169)])
sketch20.addConstraint(Sketcher.Constraint("Vertical", 0))
sketch20.addConstraint(Sketcher.Constraint("Horizontal", 1))
sketch20.addConstraint(Sketcher.Constraint("Vertical", 2))
sketch20.addConstraint(Sketcher.Constraint("Horizontal", 3))
sketch20.addConstraint(Sketcher.Constraint("DistanceX", 1, 1, 1, 2, Q("19.969543 mm")))
sketch20.addConstraint(Sketcher.Constraint("DistanceY", 0, 2, 0, 1, Q("19.838905 mm")))
sketch20.addConstraint(Sketcher.Constraint("DistanceY", -1, 1, 2, 2, Q("31.151169 mm")))
sketch20.addConstraint(Sketcher.Constraint("DistanceX", -1, 1, 0, 2, Q("45.793883 mm")))
pad9 = body.newObject("PartDesign::Pad", "Pad008")
pad9.Profile = sketch20
pad9.Length = 20

sketch21 = body.newObject("Sketcher::SketchObject", "Sketch020")
sketch21.AttachmentSupport = (doc.getObject("XZ_Plane"), [""])
sketch21.MapMode = "FlatFace"
sketch21.AttachmentOffset = App.Placement(App.Vector(0, 0, -100), App.Rotation())
add_polygon(sketch21, [(-118.205128, -97.423077), (-68.205128, -52.570358), (-68.205128, -97.423077)])
add_polygon(sketch21, [(71.794872, -97.423077), (71.794872, -52.570358), (121.794872, -97.423077)])
sketch21.addConstraint(Sketcher.Constraint("Vertical", 1))
sketch21.addConstraint(Sketcher.Constraint("Horizontal", 2))
sketch21.addConstraint(Sketcher.Constraint("Vertical", 3))
sketch21.addConstraint(Sketcher.Constraint("Horizontal", 5))
sketch21.addConstraint(Sketcher.Constraint("Horizontal", 0, 2, 3, 2))
sketch21.addConstraint(Sketcher.Constraint("Horizontal", 2, 2, 4, 2))
sketch21.addConstraint(Sketcher.Constraint("Equal", 2, 5))
sketch21.addConstraint(Sketcher.Constraint("DistanceX", 2, 2, 2, 1, Q("50 mm")))
sketch21.addConstraint(Sketcher.Constraint("DistanceX", 0, 2, 3, 2, Q("140 mm")))
sketch21.addConstraint(Sketcher.Constraint("DistanceY", 1, 2, 1, 1, Q("44.852719 mm")))
sketch21.addConstraint(Sketcher.Constraint("DistanceX", 0, 2, -1, 1, Q("68.205128 mm")))
sketch21.addConstraint(Sketcher.Constraint("DistanceY", 0, 2, -1, 1, Q("52.570358 mm")))
pad10 = body.newObject("PartDesign::Pad", "Pad009")
pad10.Profile = sketch21
pad10.Length = 55.5

sketch22 = body.newObject("Sketcher::SketchObject", "Sketch021")
sketch22.AttachmentSupport = (doc.getObject("XZ_Plane"), [""])
sketch22.MapMode = "FlatFace"
sketch22.AttachmentOffset = App.Placement(App.Vector(0, 0, -100), App.Rotation())
add_polygon(sketch22, [(-107.664276, -100.959359), (-57.664276, -57.344667), (-57.664276, -100.959359)])
add_polygon(sketch22, [(62.189332, -57.344667), (112.335724, -100.959359), (62.189332, -100.959359)])
sketch22.addConstraint(Sketcher.Constraint("Vertical", 1))
sketch22.addConstraint(Sketcher.Constraint("Horizontal", 2))
sketch22.addConstraint(Sketcher.Constraint("Horizontal", 4))
sketch22.addConstraint(Sketcher.Constraint("Vertical", 5))
sketch22.addConstraint(Sketcher.Constraint("Horizontal", 2, 2, 3, 2))
sketch22.addConstraint(Sketcher.Constraint("Horizontal", 0, 2, 5, 2))
sketch22.addConstraint(Sketcher.Constraint("DistanceX", 2, 2, 2, 1, Q("50 mm")))
sketch22.addConstraint(Sketcher.Constraint("DistanceX", 1, 2, 3, 2, Q("170 mm")))
sketch22.addConstraint(Sketcher.Constraint("DistanceX", 4, 2, 4, 1, Q("50.146391 mm")))
sketch22.addConstraint(Sketcher.Constraint("DistanceY", 1, 2, 1, 1, Q("43.614692 mm")))
sketch22.addConstraint(Sketcher.Constraint("DistanceY", 1, 2, -1, 1, Q("100.959359 mm")))
sketch22.addConstraint(Sketcher.Constraint("DistanceX", 0, 2, -1, 1, Q("57.664276 mm")))
pocket12 = body.newObject("PartDesign::Pocket", "Pocket011")
pocket12.Profile = sketch22
pocket12.Length = 45
pocket12.Reversed = True

sketch23 = body.newObject("Sketcher::SketchObject", "Sketch022")
sketch23.AttachmentSupport = (doc.getObject("XZ_Plane"), [""])
sketch23.MapMode = "FlatFace"
sketch23.AttachmentOffset = App.Placement(App.Vector(0, 0, -10), App.Rotation())
add_polygon(sketch23, [(-57.664276, -28.569442), (-57.664276, 41.430558), (62.189332, 41.430558), (62.189332, -28.569442)])
sketch23.addConstraint(Sketcher.Constraint("Vertical", 0))
sketch23.addConstraint(Sketcher.Constraint("Horizontal", 1))
sketch23.addConstraint(Sketcher.Constraint("Vertical", 2))
sketch23.addConstraint(Sketcher.Constraint("Horizontal", 3))
sketch23.addConstraint(Sketcher.Constraint("DistanceY", 0, 1, 0, 2, Q("70 mm")))
sketch23.addConstraint(Sketcher.Constraint("DistanceX", 1, 1, 1, 2, Q("119.853609 mm")))
sketch23.addConstraint(Sketcher.Constraint("DistanceX", 0, 2, -1, 1, Q("57.664276 mm")))
sketch23.addConstraint(Sketcher.Constraint("DistanceY", -1, 1, 0, 2, Q("41.430558 mm")))
pad11 = body.newObject("PartDesign::Pad", "Pad010")
pad11.Profile = sketch23
pad11.Length = 90
pad11.Reversed = True

sketch24 = body.newObject("Sketcher::SketchObject", "Sketch023")
sketch24.AttachmentSupport = (doc.getObject("XY_Plane"), [""])
sketch24.MapMode = "FlatFace"
sketch24.AttachmentOffset = App.Placement(App.Vector(0, 0, 52.576923), App.Rotation())
add_polygon(sketch24, [(-45.697201, 82.046428), (-45.697201, 45.102372), (56.383316, 45.102372), (56.383316, 82.046428)])
sketch24.addConstraint(Sketcher.Constraint("Vertical", 0))
sketch24.addConstraint(Sketcher.Constraint("Horizontal", 1))
sketch24.addConstraint(Sketcher.Constraint("Vertical", 2))
sketch24.addConstraint(Sketcher.Constraint("Horizontal", 3))
sketch24.addConstraint(Sketcher.Constraint("DistanceX", 0, 2, -1, 1, Q("45.697201 mm")))
sketch24.addConstraint(Sketcher.Constraint("DistanceX", 1, 1, 1, 2, Q("102.080517 mm")))
sketch24.addConstraint(Sketcher.Constraint("DistanceY", 0, 2, 0, 1, Q("36.944055 mm")))
sketch24.addConstraint(Sketcher.Constraint("DistanceY", -1, 1, 0, 2, Q("45.102372 mm")))
pocket13 = body.newObject("PartDesign::Pocket", "Pocket012")
pocket13.Profile = sketch24
pocket13.Length = 70

sketch25 = body.newObject("Sketcher::SketchObject", "Sketch024")
sketch25.AttachmentSupport = (doc.getObject("XZ_Plane"), [""])
sketch25.MapMode = "FlatFace"
sketch25.AttachmentOffset = App.Placement(App.Vector(0, 0, -82.046428), App.Rotation())
add_polygon(sketch25, [(-45.697201, 52.576923), (-45.697201, 49.680063), (56.874572, 49.680063), (56.874572, 52.576923)])
sketch25.addConstraint(Sketcher.Constraint("Vertical", 0))
sketch25.addConstraint(Sketcher.Constraint("Horizontal", 1))
sketch25.addConstraint(Sketcher.Constraint("Vertical", 2))
sketch25.addConstraint(Sketcher.Constraint("Horizontal", 3))
sketch25.addConstraint(Sketcher.Constraint("DistanceY", 0, 2, 0, 1, Q("2.89686 mm")))
sketch25.addConstraint(Sketcher.Constraint("DistanceX", 0, 2, -1, 1, Q("45.697201 mm")))
sketch25.addConstraint(Sketcher.Constraint("DistanceX", 1, 1, 1, 2, Q("102.571773 mm")))
sketch25.addConstraint(Sketcher.Constraint("DistanceY", -1, 1, 0, 2, Q("49.680063 mm")))
pad12 = body.newObject("PartDesign::Pad", "Pad011")
pad12.Profile = sketch25
pad12.Length = 8

sketch26 = body.newObject("Sketcher::SketchObject", "Sketch025")
sketch26.AttachmentSupport = (doc.getObject("XZ_Plane"), [""])
sketch26.MapMode = "FlatFace"
sketch26.AttachmentOffset = App.Placement(App.Vector(0, 0, 4), App.Rotation())
add_polygon(sketch26, [(-32.502493, 45.225447), (-32.502493, 43.332116), (33.117843, 43.332116), (33.117843, 45.225447)])
sketch26.addConstraint(Sketcher.Constraint("Vertical", 0))
sketch26.addConstraint(Sketcher.Constraint("Horizontal", 1))
sketch26.addConstraint(Sketcher.Constraint("Vertical", 2))
sketch26.addConstraint(Sketcher.Constraint("Horizontal", 3))
sketch26.addConstraint(Sketcher.Constraint("DistanceY", 0, 2, 0, 1, Q("1.893331 mm")))
sketch26.addConstraint(Sketcher.Constraint("DistanceX", 1, 1, 1, 2, Q("65.620336 mm")))
sketch26.addConstraint(Sketcher.Constraint("DistanceX", 0, 2, -1, 1, Q("32.502493 mm")))
sketch26.addConstraint(Sketcher.Constraint("DistanceY", -1, 1, 0, 2, Q("43.332116 mm")))
pocket14 = body.newObject("PartDesign::Pocket", "Pocket013")
pocket14.Profile = sketch26
pocket14.Length = 4

sketch27 = body.newObject("Sketcher::SketchObject", "Sketch026")
sketch27.AttachmentSupport = (doc.getObject("XY_Plane"), [""])
sketch27.MapMode = "FlatFace"
sketch27.AttachmentOffset = App.Placement(App.Vector(0, 0, 17.725447), App.Rotation())
add_polygon(sketch27, [(58.241014, -122.33912), (58.241014, -133.499574), (51.587667, -133.499574), (51.587667, -122.33912)])
sketch27.addConstraint(Sketcher.Constraint("Vertical", 0))
sketch27.addConstraint(Sketcher.Constraint("Horizontal", 1))
sketch27.addConstraint(Sketcher.Constraint("Vertical", 2))
sketch27.addConstraint(Sketcher.Constraint("Horizontal", 3))
sketch27.addConstraint(Sketcher.Constraint("DistanceX", 1, 2, 1, 1, Q("6.653348 mm")))
sketch27.addConstraint(Sketcher.Constraint("DistanceY", 0, 2, 0, 1, Q("11.160454 mm")))
sketch27.addConstraint(Sketcher.Constraint("DistanceY", 2, 2, -1, 1, Q("122.33912 mm")))
sketch27.addConstraint(Sketcher.Constraint("DistanceX", -1, 1, 0, 2, Q("58.241014 mm")))
pad13 = body.newObject("PartDesign::Pad", "Pad012")
pad13.Profile = sketch27
pad13.Length = 8

sketch28 = body.newObject("Sketcher::SketchObject", "Sketch027")
sketch28.AttachmentSupport = (doc.getObject("XY_Plane"), [""])
sketch28.MapMode = "FlatFace"
sketch28.AttachmentOffset = App.Placement(App.Vector(0, 0, 25.85528), App.Rotation())
add_polygon(sketch28, [(52.868322, -122.931708), (52.868322, -132.89209), (57.318706, -132.89209), (57.318706, -122.931708)])
sketch28.addConstraint(Sketcher.Constraint("Vertical", 0))
sketch28.addConstraint(Sketcher.Constraint("Horizontal", 1))
sketch28.addConstraint(Sketcher.Constraint("Vertical", 2))
sketch28.addConstraint(Sketcher.Constraint("Horizontal", 3))
sketch28.addConstraint(Sketcher.Constraint("DistanceX", 1, 1, 1, 2, Q("4.450384 mm")))
sketch28.addConstraint(Sketcher.Constraint("DistanceY", 0, 2, 0, 1, Q("9.960382 mm")))
sketch28.addConstraint(Sketcher.Constraint("DistanceY", 0, 2, -1, 1, Q("132.89209 mm")))
sketch28.addConstraint(Sketcher.Constraint("DistanceX", -1, 1, 0, 2, Q("52.868322 mm")))
pad14 = body.newObject("PartDesign::Pad", "Pad013")
pad14.Profile = sketch28
pad14.Length = 8
pad14.Reversed = True

sketch29 = body.newObject("Sketcher::SketchObject", "Sketch028")
sketch29.AttachmentSupport = (doc.getObject("XY_Plane"), [""])
sketch29.MapMode = "FlatFace"
sketch29.AttachmentOffset = App.Placement(App.Vector(0, 0, 17.725447), App.Rotation())
sketch29.addGeometry(Part.Circle(App.Vector(55.095402, -126, 0), App.Vector(0, 0, 1), 1.5), False)
sketch29.addConstraint(Sketcher.Constraint("Diameter", 0, Q("3 mm")))
sketch29.addConstraint(Sketcher.Constraint("DistanceY", 0, 3, -1, 1, Q("126 mm")))
sketch29.addConstraint(Sketcher.Constraint("DistanceX", -1, 1, 0, 3, Q("55.095402 mm")))
pocket15 = body.newObject("PartDesign::Pocket", "Pocket014")
pocket15.Profile = sketch29
pocket15.Length = 20
pocket15.Reversed = True

sketch30 = body.newObject("Sketcher::SketchObject", "Sketch029")
sketch30.AttachmentSupport = (doc.getObject("XY_Plane"), [""])
sketch30.MapMode = "FlatFace"
sketch30.AttachmentOffset = App.Placement(App.Vector(0, 0, 52.576923), App.Rotation())
add_polygon(sketch30, [(18.112945, 26.050183), (18.112945, 10.579802), (35.91448, 10.579802), (35.91448, 26.050183)])
sketch30.addConstraint(Sketcher.Constraint("Vertical", 0))
sketch30.addConstraint(Sketcher.Constraint("Horizontal", 1))
sketch30.addConstraint(Sketcher.Constraint("Vertical", 2))
sketch30.addConstraint(Sketcher.Constraint("Horizontal", 3))
sketch30.addConstraint(Sketcher.Constraint("DistanceY", 0, 2, 0, 1, Q("15.470381 mm")))
sketch30.addConstraint(Sketcher.Constraint("DistanceY", -1, 1, 0, 2, Q("10.579802 mm")))
sketch30.addConstraint(Sketcher.Constraint("DistanceX", 1, 1, 1, 2, Q("17.801535 mm")))
sketch30.addConstraint(Sketcher.Constraint("DistanceX", -1, 1, 1, 2, Q("35.91448 mm")))
pocket16 = body.newObject("PartDesign::Pocket", "Pocket015")
pocket16.Profile = sketch30
pocket16.Length = 45

sketch31 = body.newObject("Sketcher::SketchObject", "Sketch030")
sketch31.AttachmentSupport = (doc.getObject("XZ_Plane"), [""])
sketch31.MapMode = "FlatFace"
sketch31.AttachmentOffset = App.Placement(App.Vector(0, 0, -26.050183), App.Rotation())
add_polygon(sketch31, [(18.112945, 21.327091), (18.112945, 7.763), (35.91448, 7.763), (35.91448, 21.327091)])
sketch31.addConstraint(Sketcher.Constraint("Vertical", 0))
sketch31.addConstraint(Sketcher.Constraint("Horizontal", 1))
sketch31.addConstraint(Sketcher.Constraint("Vertical", 2))
sketch31.addConstraint(Sketcher.Constraint("Horizontal", 3))
sketch31.addConstraint(Sketcher.Constraint("DistanceY", -1, 1, 0, 2, Q("7.763 mm")))
sketch31.addConstraint(Sketcher.Constraint("DistanceY", 0, 2, 0, 1, Q("13.564091 mm")))
sketch31.addConstraint(Sketcher.Constraint("DistanceX", 1, 1, 1, 2, Q("17.801535 mm")))
sketch31.addConstraint(Sketcher.Constraint("DistanceX", -1, 1, 1, 2, Q("35.91448 mm")))
pocket17 = body.newObject("PartDesign::Pocket", "Pocket016")
pocket17.Profile = sketch31
pocket17.Length = 25

sketch32 = body.newObject("Sketcher::SketchObject", "Sketch031")
sketch32.AttachmentSupport = (doc.getObject("XZ_Plane"), [""])
sketch32.MapMode = "FlatFace"
sketch32.AttachmentOffset = App.Placement(App.Vector(0, 0, -10.579802), App.Rotation())
add_polygon(sketch32, [(18.112945, 12.494364), (18.112945, 52.576923), (35.91448, 52.576923), (35.91448, 12.494364)])
sketch32.addGeometry(Part.LineSegment(App.Vector(18.112945, 52.576923, 0), App.Vector(35.91448, 52.576923, 0)), True)
sketch32.addConstraint(Sketcher.Constraint("Vertical", 0))
sketch32.addConstraint(Sketcher.Constraint("Horizontal", 1))
sketch32.addConstraint(Sketcher.Constraint("Vertical", 2))
sketch32.addConstraint(Sketcher.Constraint("Horizontal", 3))
sketch32.addConstraint(Sketcher.Constraint("Horizontal", 4))
sketch32.addConstraint(Sketcher.Constraint("Coincident", 4, 1, 0, 2))
sketch32.addConstraint(Sketcher.Constraint("Vertical", 2, 2, 4, 2))
sketch32.addConstraint(Sketcher.Constraint("DistanceY", 0, 1, 0, 2, Q("40.082559 mm")))
sketch32.addConstraint(Sketcher.Constraint("DistanceX", 1, 1, 1, 2, Q("17.801535 mm")))
sketch32.addConstraint(Sketcher.Constraint("DistanceX", -1, 1, 1, 2, Q("35.91448 mm")))
sketch32.addConstraint(Sketcher.Constraint("DistanceY", -1, 1, 0, 2, Q("52.576923 mm")))
groove = body.newObject("PartDesign::Groove", "Groove")
groove.Profile = sketch32
groove.ReferenceAxis = (sketch32, ["Axis0"])
groove.Angle = 45

doc.recompute()
